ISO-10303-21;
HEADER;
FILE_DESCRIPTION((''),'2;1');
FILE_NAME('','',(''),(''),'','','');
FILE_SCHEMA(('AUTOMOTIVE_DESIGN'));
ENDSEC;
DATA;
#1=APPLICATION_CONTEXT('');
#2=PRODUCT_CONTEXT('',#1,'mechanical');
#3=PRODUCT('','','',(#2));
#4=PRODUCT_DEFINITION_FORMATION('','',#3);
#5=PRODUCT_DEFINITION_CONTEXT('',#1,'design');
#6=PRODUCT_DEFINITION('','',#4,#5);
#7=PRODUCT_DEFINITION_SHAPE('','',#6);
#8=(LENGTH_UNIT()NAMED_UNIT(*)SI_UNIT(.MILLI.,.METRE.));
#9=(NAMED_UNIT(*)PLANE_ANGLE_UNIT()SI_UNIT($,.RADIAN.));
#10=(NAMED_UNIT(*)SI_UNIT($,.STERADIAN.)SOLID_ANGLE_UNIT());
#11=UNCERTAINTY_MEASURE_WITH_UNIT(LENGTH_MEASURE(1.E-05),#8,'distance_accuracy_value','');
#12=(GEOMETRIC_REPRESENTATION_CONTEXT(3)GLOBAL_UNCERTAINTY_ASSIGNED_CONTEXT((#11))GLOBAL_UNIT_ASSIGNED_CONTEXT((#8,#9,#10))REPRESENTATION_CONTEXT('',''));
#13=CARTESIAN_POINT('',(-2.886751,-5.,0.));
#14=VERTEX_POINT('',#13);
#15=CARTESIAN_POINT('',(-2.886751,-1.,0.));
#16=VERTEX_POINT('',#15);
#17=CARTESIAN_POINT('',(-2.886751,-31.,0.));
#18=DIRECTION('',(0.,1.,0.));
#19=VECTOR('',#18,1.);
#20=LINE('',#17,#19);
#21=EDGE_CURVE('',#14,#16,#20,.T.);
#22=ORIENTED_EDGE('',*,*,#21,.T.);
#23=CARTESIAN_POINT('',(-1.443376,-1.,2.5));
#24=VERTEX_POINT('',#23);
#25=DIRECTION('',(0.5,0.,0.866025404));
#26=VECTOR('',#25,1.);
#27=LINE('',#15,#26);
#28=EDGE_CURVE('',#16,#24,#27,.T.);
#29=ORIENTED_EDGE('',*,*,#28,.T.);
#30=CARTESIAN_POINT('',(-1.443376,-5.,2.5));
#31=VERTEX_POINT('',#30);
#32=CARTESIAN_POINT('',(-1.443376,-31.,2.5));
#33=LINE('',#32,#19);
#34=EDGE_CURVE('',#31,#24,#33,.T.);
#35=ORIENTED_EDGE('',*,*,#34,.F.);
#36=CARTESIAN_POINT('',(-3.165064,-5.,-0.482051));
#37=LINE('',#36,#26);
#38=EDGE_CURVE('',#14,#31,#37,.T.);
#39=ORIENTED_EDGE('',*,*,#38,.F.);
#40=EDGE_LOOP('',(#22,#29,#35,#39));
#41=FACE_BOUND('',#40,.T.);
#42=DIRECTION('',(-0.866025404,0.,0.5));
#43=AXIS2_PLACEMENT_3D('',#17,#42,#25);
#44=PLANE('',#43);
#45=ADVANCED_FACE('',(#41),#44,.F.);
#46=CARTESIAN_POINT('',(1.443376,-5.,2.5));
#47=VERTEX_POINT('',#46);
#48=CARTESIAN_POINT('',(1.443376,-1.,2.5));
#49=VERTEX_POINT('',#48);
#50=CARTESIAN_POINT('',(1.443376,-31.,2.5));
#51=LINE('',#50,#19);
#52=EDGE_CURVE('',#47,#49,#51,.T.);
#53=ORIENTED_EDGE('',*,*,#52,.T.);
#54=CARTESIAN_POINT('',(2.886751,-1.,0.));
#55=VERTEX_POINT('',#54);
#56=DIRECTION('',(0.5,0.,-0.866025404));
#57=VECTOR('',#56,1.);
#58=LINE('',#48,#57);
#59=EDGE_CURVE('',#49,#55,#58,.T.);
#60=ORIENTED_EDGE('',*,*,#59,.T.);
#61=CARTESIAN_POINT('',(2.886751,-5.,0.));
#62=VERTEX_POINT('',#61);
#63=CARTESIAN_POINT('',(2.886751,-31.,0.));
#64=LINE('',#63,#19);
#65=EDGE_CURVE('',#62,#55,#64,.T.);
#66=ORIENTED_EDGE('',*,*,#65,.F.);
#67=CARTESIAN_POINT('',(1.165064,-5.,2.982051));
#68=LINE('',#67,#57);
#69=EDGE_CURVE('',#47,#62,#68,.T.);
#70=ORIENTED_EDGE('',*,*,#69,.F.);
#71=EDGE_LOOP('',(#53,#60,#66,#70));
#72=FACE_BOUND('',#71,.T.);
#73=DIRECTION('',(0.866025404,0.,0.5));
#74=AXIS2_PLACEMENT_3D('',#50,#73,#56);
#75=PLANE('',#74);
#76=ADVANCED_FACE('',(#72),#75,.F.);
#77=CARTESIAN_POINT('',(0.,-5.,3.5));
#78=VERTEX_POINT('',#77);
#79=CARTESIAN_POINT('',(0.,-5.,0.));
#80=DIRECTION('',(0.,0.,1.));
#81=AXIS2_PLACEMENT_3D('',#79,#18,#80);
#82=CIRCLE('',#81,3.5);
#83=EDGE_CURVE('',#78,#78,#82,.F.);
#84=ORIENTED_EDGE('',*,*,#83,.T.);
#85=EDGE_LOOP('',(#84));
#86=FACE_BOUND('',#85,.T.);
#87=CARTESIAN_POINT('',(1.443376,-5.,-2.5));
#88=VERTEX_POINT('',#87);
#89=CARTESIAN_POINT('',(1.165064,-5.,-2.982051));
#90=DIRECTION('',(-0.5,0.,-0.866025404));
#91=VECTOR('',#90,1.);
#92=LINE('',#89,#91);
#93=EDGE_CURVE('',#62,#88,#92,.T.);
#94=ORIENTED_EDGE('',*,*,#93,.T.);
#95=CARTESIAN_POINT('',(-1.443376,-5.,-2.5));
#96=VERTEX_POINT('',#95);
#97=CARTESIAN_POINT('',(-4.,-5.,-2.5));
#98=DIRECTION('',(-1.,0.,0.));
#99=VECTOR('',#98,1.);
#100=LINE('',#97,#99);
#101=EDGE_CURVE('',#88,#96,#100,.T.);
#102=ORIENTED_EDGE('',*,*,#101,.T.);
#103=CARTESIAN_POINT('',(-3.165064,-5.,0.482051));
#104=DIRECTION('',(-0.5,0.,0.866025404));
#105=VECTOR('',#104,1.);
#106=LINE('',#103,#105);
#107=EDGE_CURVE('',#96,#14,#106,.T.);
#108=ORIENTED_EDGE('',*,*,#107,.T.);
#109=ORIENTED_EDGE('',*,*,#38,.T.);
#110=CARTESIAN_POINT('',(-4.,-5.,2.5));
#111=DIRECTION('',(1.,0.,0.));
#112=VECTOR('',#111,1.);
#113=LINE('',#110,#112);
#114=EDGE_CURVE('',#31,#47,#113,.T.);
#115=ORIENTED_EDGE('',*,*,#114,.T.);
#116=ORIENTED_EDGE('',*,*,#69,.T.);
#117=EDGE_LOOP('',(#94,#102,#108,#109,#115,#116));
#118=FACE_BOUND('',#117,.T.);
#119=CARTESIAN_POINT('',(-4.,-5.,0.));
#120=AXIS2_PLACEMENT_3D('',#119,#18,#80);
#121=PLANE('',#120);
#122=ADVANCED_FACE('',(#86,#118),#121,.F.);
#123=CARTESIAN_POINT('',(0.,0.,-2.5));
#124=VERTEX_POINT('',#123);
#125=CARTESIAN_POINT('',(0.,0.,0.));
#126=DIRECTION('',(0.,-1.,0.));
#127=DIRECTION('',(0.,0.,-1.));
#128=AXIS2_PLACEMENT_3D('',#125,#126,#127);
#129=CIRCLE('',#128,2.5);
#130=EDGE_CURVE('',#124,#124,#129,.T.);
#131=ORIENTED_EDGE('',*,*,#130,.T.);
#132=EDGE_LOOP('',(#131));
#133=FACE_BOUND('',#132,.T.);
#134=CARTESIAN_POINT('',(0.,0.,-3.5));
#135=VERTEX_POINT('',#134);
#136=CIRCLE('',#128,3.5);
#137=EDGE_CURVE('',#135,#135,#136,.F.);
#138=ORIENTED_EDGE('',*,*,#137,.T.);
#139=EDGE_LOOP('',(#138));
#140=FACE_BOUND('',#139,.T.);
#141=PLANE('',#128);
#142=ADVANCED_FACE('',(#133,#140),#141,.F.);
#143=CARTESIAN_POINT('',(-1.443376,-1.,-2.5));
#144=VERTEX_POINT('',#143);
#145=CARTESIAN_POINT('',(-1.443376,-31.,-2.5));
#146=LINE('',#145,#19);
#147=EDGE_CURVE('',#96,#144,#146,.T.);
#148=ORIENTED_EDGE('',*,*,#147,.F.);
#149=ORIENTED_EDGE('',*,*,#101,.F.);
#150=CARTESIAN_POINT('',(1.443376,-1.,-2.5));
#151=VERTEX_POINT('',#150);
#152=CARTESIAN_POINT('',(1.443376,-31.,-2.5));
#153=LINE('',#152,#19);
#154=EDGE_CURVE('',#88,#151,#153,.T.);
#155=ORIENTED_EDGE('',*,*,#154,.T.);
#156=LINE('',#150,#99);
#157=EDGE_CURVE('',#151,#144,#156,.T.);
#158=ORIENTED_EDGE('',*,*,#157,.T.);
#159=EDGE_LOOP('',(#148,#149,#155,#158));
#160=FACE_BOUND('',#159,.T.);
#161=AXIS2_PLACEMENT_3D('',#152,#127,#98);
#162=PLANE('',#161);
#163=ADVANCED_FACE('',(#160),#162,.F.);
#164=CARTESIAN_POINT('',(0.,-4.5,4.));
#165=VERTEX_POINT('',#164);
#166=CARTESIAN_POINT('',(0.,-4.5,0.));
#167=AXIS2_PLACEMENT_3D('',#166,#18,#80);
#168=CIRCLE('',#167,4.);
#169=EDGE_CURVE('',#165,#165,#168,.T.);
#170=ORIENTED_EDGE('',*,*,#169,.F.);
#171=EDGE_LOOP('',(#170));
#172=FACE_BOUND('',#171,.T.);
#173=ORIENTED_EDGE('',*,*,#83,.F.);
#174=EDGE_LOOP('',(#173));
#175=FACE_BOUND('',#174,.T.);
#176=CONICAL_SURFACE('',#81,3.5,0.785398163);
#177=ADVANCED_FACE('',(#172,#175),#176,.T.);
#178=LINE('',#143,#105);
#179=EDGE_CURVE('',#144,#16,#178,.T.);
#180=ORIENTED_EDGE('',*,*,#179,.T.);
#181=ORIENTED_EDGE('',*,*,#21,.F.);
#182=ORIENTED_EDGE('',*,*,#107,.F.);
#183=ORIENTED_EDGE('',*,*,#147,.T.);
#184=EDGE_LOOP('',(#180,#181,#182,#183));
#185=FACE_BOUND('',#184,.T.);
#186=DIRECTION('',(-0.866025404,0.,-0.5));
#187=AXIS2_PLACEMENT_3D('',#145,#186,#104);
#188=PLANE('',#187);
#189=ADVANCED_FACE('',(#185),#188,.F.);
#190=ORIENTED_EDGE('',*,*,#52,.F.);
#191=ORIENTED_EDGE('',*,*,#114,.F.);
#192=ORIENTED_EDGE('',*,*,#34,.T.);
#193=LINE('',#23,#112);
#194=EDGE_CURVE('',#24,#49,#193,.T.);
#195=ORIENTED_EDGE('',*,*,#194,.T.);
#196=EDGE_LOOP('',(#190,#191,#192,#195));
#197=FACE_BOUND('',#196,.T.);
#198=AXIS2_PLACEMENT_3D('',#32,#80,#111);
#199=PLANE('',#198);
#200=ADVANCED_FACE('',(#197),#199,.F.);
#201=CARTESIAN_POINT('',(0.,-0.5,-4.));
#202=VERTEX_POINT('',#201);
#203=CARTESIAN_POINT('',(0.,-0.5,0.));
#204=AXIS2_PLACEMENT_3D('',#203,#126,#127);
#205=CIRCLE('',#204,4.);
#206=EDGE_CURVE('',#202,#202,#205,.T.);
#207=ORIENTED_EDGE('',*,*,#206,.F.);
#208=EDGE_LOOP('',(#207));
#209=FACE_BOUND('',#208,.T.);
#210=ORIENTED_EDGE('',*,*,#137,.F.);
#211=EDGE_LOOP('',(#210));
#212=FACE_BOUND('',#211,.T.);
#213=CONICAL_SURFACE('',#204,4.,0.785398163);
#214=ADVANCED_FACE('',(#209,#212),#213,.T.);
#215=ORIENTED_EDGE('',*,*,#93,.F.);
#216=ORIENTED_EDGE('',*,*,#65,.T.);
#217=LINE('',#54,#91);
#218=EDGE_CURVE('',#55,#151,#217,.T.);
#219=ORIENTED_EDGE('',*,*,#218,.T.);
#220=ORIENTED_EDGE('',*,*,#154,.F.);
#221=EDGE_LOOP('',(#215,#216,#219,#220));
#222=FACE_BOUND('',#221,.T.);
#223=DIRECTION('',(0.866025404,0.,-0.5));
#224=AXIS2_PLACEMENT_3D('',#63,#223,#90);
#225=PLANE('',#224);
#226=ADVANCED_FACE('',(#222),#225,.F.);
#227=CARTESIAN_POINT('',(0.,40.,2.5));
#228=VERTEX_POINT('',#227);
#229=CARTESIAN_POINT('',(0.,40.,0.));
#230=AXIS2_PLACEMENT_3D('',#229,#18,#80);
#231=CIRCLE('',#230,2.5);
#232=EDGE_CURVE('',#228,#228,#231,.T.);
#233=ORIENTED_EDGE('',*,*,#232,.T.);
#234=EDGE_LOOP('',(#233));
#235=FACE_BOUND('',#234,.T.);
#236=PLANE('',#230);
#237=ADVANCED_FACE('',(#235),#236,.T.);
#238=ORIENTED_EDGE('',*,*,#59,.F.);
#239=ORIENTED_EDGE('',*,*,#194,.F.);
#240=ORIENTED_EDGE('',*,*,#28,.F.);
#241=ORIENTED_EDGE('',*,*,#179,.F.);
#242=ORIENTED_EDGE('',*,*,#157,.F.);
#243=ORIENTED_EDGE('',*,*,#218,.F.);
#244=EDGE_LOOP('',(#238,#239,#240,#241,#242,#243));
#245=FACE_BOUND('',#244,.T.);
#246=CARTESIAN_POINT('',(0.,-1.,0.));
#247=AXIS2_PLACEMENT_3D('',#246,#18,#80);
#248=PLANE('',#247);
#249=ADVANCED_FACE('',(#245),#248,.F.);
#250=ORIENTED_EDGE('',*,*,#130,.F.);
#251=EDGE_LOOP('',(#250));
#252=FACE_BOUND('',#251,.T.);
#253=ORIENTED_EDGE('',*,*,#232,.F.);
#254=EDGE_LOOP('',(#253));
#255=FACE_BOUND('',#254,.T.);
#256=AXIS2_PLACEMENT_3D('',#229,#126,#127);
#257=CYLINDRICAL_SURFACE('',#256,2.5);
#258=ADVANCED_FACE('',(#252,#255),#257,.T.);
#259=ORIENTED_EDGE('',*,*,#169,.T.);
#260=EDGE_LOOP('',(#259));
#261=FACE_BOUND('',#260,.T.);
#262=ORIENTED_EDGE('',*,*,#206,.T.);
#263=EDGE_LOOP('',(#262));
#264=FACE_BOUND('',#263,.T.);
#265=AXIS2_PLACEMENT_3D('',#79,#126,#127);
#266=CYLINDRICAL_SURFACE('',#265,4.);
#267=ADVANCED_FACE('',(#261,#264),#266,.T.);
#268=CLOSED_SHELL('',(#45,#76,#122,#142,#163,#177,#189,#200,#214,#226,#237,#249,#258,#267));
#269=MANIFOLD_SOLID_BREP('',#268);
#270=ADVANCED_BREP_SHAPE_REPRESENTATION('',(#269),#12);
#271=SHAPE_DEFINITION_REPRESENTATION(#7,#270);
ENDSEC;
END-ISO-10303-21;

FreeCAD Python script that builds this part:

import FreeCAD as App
import Part
import Sketcher
from FreeCAD import Vector
Q = App.Units.Quantity


def edges_at(feature, points):
    """Names of the edges that pass closest to the given points."""
    edges = feature.Shape.Edges
    near = lambda p: min(range(len(edges)), key=lambda i: edges[i].distToShape(Part.Vertex(*p))[0])
    return sorted({f"Edge{near(p) + 1}" for p in points})

doc = App.newDocument("Part")
body = doc.addObject("PartDesign::Body", "Body")

sketch1 = body.newObject("Sketcher::SketchObject", "Sketch")
sketch1.AttachmentSupport = (doc.getObject("XZ_Plane"), [""])
sketch1.MapMode = "FlatFace"
sketch1.addGeometry(Part.Circle(Vector(0, 0, 0), Vector(0, 0, 1), 2.5), False)
sketch1.addConstraint([
    Sketcher.Constraint("Coincident", 0, 3, -1, 1),
    Sketcher.Constraint("Diameter", 0, 5.0),
])
pad1 = body.newObject("PartDesign::Pad", "Pad")
pad1.Profile = sketch1
pad1.Length = 40
pad1.Reversed = True

sketch2 = body.newObject("Sketcher::SketchObject", "Sketch001")
sketch2.AttachmentSupport = (doc.getObject("XY_Plane"), [""])
sketch2.MapMode = "FlatFace"
sketch2.addGeometry([
    Part.LineSegment(Vector(-4, 0, 0), Vector(-4, -5, 0)),
    Part.LineSegment(Vector(-4, -5, 0), Vector(0, -5, 0)),
    Part.LineSegment(Vector(0, -5, 0), Vector(0, 0, 0)),
    Part.LineSegment(Vector(0, 0, 0), Vector(-4, 0, 0)),
], False)
sketch2.addConstraint([
    Sketcher.Constraint("Coincident", 0, 2, 1, 1),
    Sketcher.Constraint("Coincident", 1, 2, 2, 1),
    Sketcher.Constraint("Coincident", 2, 2, 3, 1),
    Sketcher.Constraint("Coincident", 3, 2, 0, 1),
    Sketcher.Constraint("Vertical", 0),
    Sketcher.Constraint("Horizontal", 1),
    Sketcher.Constraint("Vertical", 2),
    Sketcher.Constraint("Horizontal", 3),
    Sketcher.Constraint("Coincident", 2, 2, -1, 1),
    Sketcher.Constraint("DistanceX", 1, 1, 1, 2, 4.0),
    Sketcher.Constraint("DistanceY", 0, 2, 0, 1, 5.0),
])
revolution = body.newObject("PartDesign::Revolution", "Revolution")
revolution.Profile = sketch2
revolution.ReferenceAxis = (sketch2, ["V_Axis"])
revolution.Angle = 360

sketch3 = body.newObject("Sketcher::SketchObject", "Sketch002")
sketch3.AttachmentSupport = (doc.getObject("XZ_Plane"), [""])
sketch3.MapMode = "FlatFace"
sketch3.AttachmentOffset = App.Placement(Vector(0, 0, 1), App.Rotation())
sketch3.addGeometry([
    Part.LineSegment(Vector(2.9, 0, 0), Vector(1.4, -2.5, 0)),
    Part.LineSegment(Vector(1.4, -2.5, 0), Vector(-1.4, -2.5, 0)),
    Part.LineSegment(Vector(-1.4, -2.5, 0), Vector(-2.9, 0, 0)),
    Part.LineSegment(Vector(-2.9, 0, 0), Vector(-1.4, 2.5, 0)),
    Part.LineSegment(Vector(-1.4, 2.5, 0), Vector(1.4, 2.5, 0)),
    Part.LineSegment(Vector(1.4, 2.5, 0), Vector(2.9, 0, 0)),
], False)
sketch3.addConstraint([
    Sketcher.Constraint("Coincident", 0, 2, 1, 1),
    Sketcher.Constraint("Coincident", 1, 2, 2, 1),
    Sketcher.Constraint("Coincident", 2, 2, 3, 1),
    Sketcher.Constraint("Coincident", 3, 2, 4, 1),
    Sketcher.Constraint("Coincident", 4, 2, 5, 1),
    Sketcher.Constraint("Coincident", 5, 2, 0, 1),
    Sketcher.Constraint("Horizontal", 1),
    Sketcher.Constraint("Horizontal", 4),
    Sketcher.Constraint("Symmetric", 0, 2, 3, 2, -1, 1),
    Sketcher.Constraint("Symmetric", 2, 2, 5, 2, -1, 1),
    Sketcher.Constraint("PointOnObject", 2, 2, -1),
    Sketcher.Constraint("Parallel", 2, 5),
    Sketcher.Constraint("Vertical", 1, 2, 3, 2),
    Sketcher.Constraint("Angle", 0, Q("-120 deg")),
    Sketcher.Constraint("DistanceY", 1, 2, 3, 2, 5.0),
    Sketcher.Constraint("DistanceX", 1, 2, 1, 1, 2.886751),
])
pocket1 = body.newObject("PartDesign::Pocket", "Pocket")
pocket1.Profile = sketch3
pocket1.Length = 30
pocket1.Reversed = True
doc.recompute()

chamfer = body.newObject("PartDesign::Chamfer", "Chamfer")
chamfer.Base = (pocket1, edges_at(pocket1, [(0, 0, 4), (0, -5, 4)]))
chamfer.Size = 0.5

doc.recompute()
